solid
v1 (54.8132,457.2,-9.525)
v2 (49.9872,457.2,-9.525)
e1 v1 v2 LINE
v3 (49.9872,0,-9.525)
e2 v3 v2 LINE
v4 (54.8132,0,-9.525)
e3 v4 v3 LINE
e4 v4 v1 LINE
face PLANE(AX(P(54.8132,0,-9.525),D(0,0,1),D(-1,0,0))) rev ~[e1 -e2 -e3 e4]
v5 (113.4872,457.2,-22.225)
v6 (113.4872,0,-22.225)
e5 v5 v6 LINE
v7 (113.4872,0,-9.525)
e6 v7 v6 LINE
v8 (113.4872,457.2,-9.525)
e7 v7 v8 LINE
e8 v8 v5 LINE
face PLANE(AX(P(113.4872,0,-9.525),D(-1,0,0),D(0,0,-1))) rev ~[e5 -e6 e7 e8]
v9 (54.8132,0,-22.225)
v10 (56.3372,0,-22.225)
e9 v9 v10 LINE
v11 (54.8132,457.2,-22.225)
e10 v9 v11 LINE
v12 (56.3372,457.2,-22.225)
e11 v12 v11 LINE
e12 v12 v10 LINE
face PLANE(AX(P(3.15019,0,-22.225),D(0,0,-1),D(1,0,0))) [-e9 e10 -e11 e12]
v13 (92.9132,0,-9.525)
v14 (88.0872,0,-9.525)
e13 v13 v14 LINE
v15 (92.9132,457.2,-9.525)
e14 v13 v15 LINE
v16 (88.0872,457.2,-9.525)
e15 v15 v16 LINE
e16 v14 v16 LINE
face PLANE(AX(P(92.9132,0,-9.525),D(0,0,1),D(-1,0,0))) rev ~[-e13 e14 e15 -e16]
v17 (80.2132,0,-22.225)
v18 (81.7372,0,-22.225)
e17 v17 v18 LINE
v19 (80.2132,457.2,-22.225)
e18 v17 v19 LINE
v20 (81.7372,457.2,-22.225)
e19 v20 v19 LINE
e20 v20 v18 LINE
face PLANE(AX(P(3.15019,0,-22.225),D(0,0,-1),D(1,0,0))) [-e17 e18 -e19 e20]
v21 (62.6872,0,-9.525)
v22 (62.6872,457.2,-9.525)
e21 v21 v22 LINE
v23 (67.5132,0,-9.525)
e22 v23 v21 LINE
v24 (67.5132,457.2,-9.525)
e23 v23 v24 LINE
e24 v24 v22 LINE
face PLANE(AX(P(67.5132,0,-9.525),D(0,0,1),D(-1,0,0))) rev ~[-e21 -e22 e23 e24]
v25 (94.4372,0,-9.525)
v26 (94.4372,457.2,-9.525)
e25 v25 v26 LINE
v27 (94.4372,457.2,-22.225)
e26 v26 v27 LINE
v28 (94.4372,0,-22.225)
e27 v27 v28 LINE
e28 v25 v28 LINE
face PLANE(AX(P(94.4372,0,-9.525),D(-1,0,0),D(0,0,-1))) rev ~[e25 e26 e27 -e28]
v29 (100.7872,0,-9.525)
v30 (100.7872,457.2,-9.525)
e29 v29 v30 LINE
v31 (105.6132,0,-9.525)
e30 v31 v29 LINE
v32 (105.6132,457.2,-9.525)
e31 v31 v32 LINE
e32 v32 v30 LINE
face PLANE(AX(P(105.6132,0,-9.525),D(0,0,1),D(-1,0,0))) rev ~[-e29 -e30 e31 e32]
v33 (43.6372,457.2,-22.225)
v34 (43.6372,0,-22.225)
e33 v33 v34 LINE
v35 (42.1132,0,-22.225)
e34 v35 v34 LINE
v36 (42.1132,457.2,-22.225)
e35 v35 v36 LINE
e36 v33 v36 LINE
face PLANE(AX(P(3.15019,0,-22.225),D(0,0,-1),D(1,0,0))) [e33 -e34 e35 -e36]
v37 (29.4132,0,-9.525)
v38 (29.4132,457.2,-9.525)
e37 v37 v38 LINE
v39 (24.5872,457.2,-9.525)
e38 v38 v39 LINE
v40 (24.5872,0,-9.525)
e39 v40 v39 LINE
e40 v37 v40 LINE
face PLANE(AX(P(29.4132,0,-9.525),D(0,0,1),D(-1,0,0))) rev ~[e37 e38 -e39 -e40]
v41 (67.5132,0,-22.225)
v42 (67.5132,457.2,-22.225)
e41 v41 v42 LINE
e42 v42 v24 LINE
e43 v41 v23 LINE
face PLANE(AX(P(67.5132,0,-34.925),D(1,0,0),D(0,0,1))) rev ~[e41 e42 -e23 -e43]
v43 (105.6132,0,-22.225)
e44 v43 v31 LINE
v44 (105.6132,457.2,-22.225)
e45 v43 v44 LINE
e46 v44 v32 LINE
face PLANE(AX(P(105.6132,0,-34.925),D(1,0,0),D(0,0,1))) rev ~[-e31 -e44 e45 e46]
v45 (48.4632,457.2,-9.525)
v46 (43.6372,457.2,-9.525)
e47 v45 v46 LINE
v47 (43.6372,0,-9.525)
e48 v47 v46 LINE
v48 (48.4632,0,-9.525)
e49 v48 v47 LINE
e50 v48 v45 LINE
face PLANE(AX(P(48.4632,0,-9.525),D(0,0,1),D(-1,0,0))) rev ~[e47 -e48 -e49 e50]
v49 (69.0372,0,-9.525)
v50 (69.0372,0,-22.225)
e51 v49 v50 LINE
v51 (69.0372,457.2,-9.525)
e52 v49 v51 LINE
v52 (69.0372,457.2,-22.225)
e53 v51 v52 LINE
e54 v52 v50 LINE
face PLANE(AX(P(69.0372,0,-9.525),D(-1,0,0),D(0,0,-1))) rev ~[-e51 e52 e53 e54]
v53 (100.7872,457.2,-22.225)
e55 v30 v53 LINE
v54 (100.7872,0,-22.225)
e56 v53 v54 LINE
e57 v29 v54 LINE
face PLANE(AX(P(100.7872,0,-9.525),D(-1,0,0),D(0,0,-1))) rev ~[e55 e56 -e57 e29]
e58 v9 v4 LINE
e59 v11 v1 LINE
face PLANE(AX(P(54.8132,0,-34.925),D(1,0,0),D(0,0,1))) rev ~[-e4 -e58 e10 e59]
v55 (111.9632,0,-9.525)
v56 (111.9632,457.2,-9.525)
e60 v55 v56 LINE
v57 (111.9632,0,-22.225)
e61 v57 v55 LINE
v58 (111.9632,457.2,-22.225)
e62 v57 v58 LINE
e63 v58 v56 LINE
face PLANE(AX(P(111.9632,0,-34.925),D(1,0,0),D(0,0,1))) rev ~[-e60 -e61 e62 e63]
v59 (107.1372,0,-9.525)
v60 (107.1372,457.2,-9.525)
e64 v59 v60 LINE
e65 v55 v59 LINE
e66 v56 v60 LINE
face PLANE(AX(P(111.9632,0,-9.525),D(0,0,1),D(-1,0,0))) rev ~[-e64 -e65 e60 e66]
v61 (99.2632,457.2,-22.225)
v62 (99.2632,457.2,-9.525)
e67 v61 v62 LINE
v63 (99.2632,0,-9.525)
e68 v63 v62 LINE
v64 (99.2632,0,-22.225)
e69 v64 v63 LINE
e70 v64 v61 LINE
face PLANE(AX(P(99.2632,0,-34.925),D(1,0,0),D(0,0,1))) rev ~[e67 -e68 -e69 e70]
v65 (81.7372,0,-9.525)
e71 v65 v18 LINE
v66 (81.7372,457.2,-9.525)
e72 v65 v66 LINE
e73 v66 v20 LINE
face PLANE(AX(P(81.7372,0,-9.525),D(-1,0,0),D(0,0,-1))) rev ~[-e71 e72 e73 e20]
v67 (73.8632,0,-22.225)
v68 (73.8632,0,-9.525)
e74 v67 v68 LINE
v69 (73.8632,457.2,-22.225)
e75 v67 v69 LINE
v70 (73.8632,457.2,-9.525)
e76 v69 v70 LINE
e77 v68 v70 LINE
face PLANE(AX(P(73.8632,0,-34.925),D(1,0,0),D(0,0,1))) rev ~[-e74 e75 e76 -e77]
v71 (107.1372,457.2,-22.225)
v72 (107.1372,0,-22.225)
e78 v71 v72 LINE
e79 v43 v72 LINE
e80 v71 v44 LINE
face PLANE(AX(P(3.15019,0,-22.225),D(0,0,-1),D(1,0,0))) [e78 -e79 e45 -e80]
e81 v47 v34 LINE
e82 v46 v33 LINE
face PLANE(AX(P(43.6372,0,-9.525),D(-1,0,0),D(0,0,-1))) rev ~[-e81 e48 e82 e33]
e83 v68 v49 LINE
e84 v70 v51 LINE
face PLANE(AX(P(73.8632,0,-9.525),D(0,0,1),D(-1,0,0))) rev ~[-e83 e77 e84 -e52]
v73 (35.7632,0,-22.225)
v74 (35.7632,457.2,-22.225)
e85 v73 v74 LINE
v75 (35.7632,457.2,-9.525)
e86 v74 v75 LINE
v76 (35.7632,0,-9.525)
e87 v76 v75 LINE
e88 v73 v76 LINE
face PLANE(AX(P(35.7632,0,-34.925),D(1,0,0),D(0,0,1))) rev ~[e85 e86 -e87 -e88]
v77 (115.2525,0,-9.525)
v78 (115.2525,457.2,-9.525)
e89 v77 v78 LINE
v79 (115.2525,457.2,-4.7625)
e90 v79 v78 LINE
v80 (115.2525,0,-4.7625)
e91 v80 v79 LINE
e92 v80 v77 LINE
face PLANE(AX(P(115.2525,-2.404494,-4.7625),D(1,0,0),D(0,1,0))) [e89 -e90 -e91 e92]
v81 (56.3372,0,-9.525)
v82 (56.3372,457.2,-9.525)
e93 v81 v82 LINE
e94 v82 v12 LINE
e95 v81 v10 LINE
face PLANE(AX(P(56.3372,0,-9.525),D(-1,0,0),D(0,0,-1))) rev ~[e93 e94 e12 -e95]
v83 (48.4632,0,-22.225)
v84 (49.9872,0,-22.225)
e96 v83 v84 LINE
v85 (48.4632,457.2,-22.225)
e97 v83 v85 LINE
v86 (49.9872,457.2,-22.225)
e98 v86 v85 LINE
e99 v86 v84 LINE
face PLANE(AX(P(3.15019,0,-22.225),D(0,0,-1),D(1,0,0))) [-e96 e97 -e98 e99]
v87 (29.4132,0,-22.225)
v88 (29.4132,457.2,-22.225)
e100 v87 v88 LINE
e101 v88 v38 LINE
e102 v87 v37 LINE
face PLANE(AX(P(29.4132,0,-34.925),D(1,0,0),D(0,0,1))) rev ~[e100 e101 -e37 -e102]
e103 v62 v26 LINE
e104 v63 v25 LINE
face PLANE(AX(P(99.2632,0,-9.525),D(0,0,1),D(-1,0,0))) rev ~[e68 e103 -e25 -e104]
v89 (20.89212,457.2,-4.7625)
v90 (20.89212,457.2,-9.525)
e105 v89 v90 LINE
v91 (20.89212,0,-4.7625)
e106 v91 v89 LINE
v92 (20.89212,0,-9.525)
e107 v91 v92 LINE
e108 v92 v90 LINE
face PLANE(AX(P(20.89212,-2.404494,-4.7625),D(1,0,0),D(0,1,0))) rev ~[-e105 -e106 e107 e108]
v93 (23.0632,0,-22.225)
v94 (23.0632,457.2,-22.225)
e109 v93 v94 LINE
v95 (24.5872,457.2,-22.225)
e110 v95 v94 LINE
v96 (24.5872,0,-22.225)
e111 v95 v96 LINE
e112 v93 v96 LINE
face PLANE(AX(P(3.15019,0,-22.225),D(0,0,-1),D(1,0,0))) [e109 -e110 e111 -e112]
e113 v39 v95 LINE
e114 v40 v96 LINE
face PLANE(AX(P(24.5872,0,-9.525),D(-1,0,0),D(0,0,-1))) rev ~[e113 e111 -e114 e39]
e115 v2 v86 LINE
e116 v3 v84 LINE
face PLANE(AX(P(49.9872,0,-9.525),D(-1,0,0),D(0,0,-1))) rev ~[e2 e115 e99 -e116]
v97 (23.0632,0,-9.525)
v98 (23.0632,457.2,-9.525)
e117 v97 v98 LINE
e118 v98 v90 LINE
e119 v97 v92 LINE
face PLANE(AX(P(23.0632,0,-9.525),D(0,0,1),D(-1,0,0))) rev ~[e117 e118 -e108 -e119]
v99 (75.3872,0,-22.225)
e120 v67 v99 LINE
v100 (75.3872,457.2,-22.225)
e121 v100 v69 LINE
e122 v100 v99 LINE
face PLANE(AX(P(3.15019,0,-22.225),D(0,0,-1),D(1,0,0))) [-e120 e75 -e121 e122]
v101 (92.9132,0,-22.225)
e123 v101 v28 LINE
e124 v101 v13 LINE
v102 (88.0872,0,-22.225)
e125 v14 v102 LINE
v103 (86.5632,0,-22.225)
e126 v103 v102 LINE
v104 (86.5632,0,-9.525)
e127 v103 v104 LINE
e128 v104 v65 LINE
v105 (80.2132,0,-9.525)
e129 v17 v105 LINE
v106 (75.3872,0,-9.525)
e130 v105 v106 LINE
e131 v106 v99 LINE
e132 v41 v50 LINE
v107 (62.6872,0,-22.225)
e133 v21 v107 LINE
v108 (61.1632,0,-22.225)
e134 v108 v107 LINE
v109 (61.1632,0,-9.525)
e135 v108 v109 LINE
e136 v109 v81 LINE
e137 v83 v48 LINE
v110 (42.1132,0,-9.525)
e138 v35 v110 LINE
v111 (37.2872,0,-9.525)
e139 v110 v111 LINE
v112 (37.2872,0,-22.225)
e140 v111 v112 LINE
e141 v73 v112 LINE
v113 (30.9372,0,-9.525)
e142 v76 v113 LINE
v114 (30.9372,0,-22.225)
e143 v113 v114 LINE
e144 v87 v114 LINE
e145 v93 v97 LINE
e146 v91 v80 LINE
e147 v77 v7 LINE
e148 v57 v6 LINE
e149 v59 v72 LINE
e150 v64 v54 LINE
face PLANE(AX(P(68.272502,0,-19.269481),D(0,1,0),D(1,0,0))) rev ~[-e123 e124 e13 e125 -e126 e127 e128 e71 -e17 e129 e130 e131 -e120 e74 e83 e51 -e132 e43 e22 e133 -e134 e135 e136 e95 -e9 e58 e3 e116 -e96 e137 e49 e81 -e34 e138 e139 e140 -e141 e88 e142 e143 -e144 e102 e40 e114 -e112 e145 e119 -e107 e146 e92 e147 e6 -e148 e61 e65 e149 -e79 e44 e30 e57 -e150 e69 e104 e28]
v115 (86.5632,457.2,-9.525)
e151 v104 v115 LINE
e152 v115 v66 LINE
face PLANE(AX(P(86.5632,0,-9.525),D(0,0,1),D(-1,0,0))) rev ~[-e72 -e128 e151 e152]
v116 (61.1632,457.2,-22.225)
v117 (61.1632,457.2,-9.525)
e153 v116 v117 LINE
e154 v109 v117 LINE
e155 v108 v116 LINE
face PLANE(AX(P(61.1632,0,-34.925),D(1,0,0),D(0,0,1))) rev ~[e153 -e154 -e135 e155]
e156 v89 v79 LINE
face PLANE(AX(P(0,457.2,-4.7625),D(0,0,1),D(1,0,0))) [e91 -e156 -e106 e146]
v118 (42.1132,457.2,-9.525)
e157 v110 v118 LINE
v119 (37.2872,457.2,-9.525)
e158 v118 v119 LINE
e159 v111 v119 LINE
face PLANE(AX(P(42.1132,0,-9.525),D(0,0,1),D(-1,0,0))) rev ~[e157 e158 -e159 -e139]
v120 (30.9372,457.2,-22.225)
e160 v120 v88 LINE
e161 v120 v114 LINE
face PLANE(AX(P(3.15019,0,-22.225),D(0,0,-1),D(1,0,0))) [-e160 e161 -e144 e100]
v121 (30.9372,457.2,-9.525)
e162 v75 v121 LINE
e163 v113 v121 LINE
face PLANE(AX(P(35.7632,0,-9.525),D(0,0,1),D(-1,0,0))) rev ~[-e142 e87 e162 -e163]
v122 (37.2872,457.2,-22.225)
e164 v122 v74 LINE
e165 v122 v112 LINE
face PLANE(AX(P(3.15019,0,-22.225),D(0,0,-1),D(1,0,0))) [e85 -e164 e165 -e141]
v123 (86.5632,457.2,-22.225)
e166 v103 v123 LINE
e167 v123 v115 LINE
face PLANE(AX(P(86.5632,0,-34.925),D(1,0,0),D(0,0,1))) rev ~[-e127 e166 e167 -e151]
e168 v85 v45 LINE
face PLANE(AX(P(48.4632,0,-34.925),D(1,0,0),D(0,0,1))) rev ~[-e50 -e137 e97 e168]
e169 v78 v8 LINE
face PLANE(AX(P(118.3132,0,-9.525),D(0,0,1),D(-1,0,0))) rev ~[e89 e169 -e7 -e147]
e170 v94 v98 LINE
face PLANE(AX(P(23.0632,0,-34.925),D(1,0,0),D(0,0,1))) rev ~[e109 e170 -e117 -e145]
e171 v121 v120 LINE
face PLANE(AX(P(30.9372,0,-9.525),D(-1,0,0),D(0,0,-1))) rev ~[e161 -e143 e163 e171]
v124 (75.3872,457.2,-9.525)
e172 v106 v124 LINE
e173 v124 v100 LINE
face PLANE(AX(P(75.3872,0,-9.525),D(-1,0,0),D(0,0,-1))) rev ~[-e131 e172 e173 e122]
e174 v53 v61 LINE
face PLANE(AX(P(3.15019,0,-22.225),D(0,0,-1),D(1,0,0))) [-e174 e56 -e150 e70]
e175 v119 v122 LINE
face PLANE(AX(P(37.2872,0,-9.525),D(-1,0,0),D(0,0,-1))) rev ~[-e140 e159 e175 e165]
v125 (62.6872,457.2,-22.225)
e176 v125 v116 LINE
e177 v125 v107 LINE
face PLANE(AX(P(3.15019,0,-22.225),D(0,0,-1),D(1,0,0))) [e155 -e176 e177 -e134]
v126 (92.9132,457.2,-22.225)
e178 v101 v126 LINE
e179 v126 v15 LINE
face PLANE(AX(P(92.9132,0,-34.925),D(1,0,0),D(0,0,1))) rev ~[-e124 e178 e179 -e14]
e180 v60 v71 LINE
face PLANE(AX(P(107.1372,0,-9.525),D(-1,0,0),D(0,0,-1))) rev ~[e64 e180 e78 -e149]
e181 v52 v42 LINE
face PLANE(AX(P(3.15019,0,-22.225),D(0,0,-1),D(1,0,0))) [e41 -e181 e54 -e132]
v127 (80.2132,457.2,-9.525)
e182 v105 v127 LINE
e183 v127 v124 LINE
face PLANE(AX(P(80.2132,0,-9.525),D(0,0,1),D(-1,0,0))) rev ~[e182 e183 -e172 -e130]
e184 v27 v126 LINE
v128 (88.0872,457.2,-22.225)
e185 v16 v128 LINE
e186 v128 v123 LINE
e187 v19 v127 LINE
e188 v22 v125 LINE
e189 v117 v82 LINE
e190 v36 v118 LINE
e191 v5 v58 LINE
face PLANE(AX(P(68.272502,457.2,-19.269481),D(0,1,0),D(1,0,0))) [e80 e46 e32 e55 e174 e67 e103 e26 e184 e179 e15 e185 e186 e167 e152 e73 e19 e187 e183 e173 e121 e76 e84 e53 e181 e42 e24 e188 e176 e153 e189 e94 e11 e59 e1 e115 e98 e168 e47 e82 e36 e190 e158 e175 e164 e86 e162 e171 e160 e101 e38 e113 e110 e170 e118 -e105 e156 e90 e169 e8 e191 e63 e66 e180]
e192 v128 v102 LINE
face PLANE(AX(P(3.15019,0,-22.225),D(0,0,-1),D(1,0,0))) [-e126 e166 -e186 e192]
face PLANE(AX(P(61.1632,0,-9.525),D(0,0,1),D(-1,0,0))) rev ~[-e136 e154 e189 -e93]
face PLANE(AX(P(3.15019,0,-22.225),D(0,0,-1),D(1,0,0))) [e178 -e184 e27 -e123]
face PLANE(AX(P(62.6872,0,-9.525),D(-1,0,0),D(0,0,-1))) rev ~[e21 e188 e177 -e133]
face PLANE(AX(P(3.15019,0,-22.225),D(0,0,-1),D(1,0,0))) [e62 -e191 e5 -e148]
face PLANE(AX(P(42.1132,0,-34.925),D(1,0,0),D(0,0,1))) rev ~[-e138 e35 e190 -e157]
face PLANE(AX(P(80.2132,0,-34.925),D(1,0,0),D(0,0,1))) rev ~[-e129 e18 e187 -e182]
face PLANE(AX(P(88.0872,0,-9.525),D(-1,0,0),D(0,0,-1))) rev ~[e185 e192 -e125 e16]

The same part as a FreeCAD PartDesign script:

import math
import FreeCAD as App
import Part
import Sketcher

V = App.Vector
Q = App.Units.Quantity


def add_polygon(sketch, points):
    """Adds a closed chain of lines whose ends are joined by coincident constraints."""
    first, n = sketch.GeometryCount, len(points)
    for a, b in zip(points, points[1:] + points[:1]):
        sketch.addGeometry(Part.LineSegment(App.Vector(*a, 0), App.Vector(*b, 0)), False)
    for i in range(n):
        sketch.addConstraint(Sketcher.Constraint("Coincident", first + i, 2, first + (i + 1) % n, 1))

doc = App.newDocument("Part")
body = doc.addObject("PartDesign::Body", "Body")

sketch1 = body.newObject("Sketcher::SketchObject", "Sketch")
sketch1.AttachmentSupport = (doc.getObject("XZ_Plane"), [""])
sketch1.MapMode = "FlatFace"
sketch1.addGeometry(Part.LineSegment(V(0, 0, 0), V(136.5, 0, 0)), False)
sketch1.addGeometry(Part.LineSegment(V(136.5, 0, 0), V(136.5, -9.5, 0)), False)
sketch1.addGeometry(Part.LineSegment(V(136.5, -9.5, 0), V(132.5, -9.5, 0)), False)
sketch1.addGeometry(Part.LineSegment(V(132.5, -9.5, 0), V(132.5, -34.9, 0)), False)
sketch1.addGeometry(Part.ArcOfCircle(Part.Circle(V(131.8, -34.9, 0), V(0, 0, 1), 0.8), math.radians(180), math.radians(360)), False)
sketch1.addGeometry(Part.LineSegment(V(131, -34.9, 0), V(131, -9.5, 0)), False)
sketch1.addGeometry(Part.LineSegment(V(131, -9.5, 0), V(126.2, -9.5, 0)), False)
sketch1.addGeometry(Part.LineSegment(V(126.2, -9.5, 0), V(126.2, -34.9, 0)), False)
sketch1.addGeometry(Part.ArcOfCircle(Part.Circle(V(125.4, -34.9, 0), V(0, 0, 1), 0.8), math.radians(180), math.radians(360)), False)
sketch1.addGeometry(Part.LineSegment(V(124.7, -34.9, 0), V(124.7, -9.5, 0)), False)
sketch1.addGeometry(Part.LineSegment(V(124.7, -9.5, 0), V(119.8, -9.5, 0)), False)
sketch1.addGeometry(Part.LineSegment(V(119.8, -9.5, 0), V(119.8, -34.9, 0)), False)
sketch1.addGeometry(Part.ArcOfCircle(Part.Circle(V(119.1, -34.9, 0), V(0, 0, 1), 0.8), math.radians(180), math.radians(360)), False)
sketch1.addGeometry(Part.LineSegment(V(118.3, -34.9, 0), V(118.3, -9.5, 0)), False)
sketch1.addGeometry(Part.LineSegment(V(118.3, -9.5, 0), V(113.5, -9.5, 0)), False)
sketch1.addGeometry(Part.LineSegment(V(113.5, -9.5, 0), V(113.5, -34.9, 0)), False)
sketch1.addGeometry(Part.ArcOfCircle(Part.Circle(V(112.7, -34.9, 0), V(0, 0, 1), 0.8), math.radians(180), math.radians(360)), False)
sketch1.addGeometry(Part.LineSegment(V(112, -34.9, 0), V(112, -9.5, 0)), False)
sketch1.addGeometry(Part.LineSegment(V(112, -9.5, 0), V(107.1, -9.5, 0)), False)
sketch1.addGeometry(Part.LineSegment(V(107.1, -9.5, 0), V(107.1, -34.9, 0)), False)
sketch1.addGeometry(Part.ArcOfCircle(Part.Circle(V(106.4, -34.9, 0), V(0, 0, 1), 0.8), math.radians(180), math.radians(360)), False)
sketch1.addGeometry(Part.LineSegment(V(105.6, -34.9, 0), V(105.6, -9.5, 0)), False)
sketch1.addGeometry(Part.LineSegment(V(105.6, -9.5, 0), V(100.8, -9.5, 0)), False)
sketch1.addGeometry(Part.LineSegment(V(100.8, -9.5, 0), V(100.8, -34.9, 0)), False)
sketch1.addGeometry(Part.ArcOfCircle(Part.Circle(V(100, -34.9, 0), V(0, 0, 1), 0.8), math.radians(180), math.radians(360)), False)
sketch1.addGeometry(Part.LineSegment(V(99.3, -34.9, 0), V(99.3, -9.5, 0)), False)
sketch1.addGeometry(Part.LineSegment(V(99.3, -9.5, 0), V(94.4, -9.5, 0)), False)
sketch1.addGeometry(Part.LineSegment(V(94.4, -9.5, 0), V(94.4, -34.9, 0)), False)
sketch1.addGeometry(Part.ArcOfCircle(Part.Circle(V(93.7, -34.9, 0), V(0, 0, 1), 0.8), math.radians(180), math.radians(360)), False)
sketch1.addGeometry(Part.LineSegment(V(92.9, -34.9, 0), V(92.9, -9.5, 0)), False)
sketch1.addGeometry(Part.LineSegment(V(92.9, -9.5, 0), V(88.1, -9.5, 0)), False)
sketch1.addGeometry(Part.LineSegment(V(88.1, -9.5, 0), V(88.1, -34.9, 0)), False)
sketch1.addGeometry(Part.ArcOfCircle(Part.Circle(V(87.3, -34.9, 0), V(0, 0, 1), 0.8), math.radians(180), math.radians(360)), False)
sketch1.addGeometry(Part.LineSegment(V(86.6, -34.9, 0), V(86.6, -9.5, 0)), False)
sketch1.addGeometry(Part.LineSegment(V(86.6, -9.5, 0), V(81.7, -9.5, 0)), False)
sketch1.addGeometry(Part.LineSegment(V(81.7, -9.5, 0), V(81.7, -34.9, 0)), False)
sketch1.addGeometry(Part.ArcOfCircle(Part.Circle(V(81, -34.9, 0), V(0, 0, 1), 0.8), math.radians(180), math.radians(360)), False)
sketch1.addGeometry(Part.LineSegment(V(80.2, -34.9, 0), V(80.2, -9.5, 0)), False)
sketch1.addGeometry(Part.LineSegment(V(80.2, -9.5, 0), V(75.4, -9.5, 0)), False)
sketch1.addGeometry(Part.LineSegment(V(75.4, -9.5, 0), V(75.4, -34.9, 0)), False)
sketch1.addGeometry(Part.ArcOfCircle(Part.Circle(V(74.6, -34.9, 0), V(0, 0, 1), 0.8), math.radians(180), math.radians(360)), False)
sketch1.addGeometry(Part.LineSegment(V(73.9, -34.9, 0), V(73.9, -9.5, 0)), False)
sketch1.addGeometry(Part.LineSegment(V(73.9, -9.5, 0), V(69, -9.5, 0)), False)
sketch1.addGeometry(Part.LineSegment(V(69, -9.5, 0), V(69, -34.9, 0)), False)
sketch1.addGeometry(Part.ArcOfCircle(Part.Circle(V(68.3, -34.9, 0), V(0, 0, 1), 0.8), math.radians(180), math.radians(360)), False)
sketch1.addGeometry(Part.LineSegment(V(67.5, -34.9, 0), V(67.5, -9.5, 0)), False)
sketch1.addGeometry(Part.LineSegment(V(67.5, -9.5, 0), V(62.7, -9.5, 0)), False)
sketch1.addGeometry(Part.LineSegment(V(62.7, -9.5, 0), V(62.7, -34.9, 0)), False)
sketch1.addGeometry(Part.ArcOfCircle(Part.Circle(V(61.9, -34.9, 0), V(0, 0, 1), 0.8), math.radians(180), math.radians(360)), False)
sketch1.addGeometry(Part.LineSegment(V(61.2, -34.9, 0), V(61.2, -9.5, 0)), False)
sketch1.addGeometry(Part.LineSegment(V(61.2, -9.5, 0), V(56.3, -9.5, 0)), False)
sketch1.addGeometry(Part.LineSegment(V(56.3, -9.5, 0), V(56.3, -34.9, 0)), False)
sketch1.addGeometry(Part.ArcOfCircle(Part.Circle(V(55.6, -34.9, 0), V(0, 0, 1), 0.8), math.radians(180), math.radians(360)), False)
sketch1.addGeometry(Part.LineSegment(V(54.8, -34.9, 0), V(54.8, -9.5, 0)), False)
sketch1.addGeometry(Part.LineSegment(V(54.8, -9.5, 0), V(50, -9.5, 0)), False)
sketch1.addGeometry(Part.LineSegment(V(50, -9.5, 0), V(50, -34.9, 0)), False)
sketch1.addGeometry(Part.ArcOfCircle(Part.Circle(V(49.2, -34.9, 0), V(0, 0, 1), 0.8), math.radians(180), math.radians(360)), False)
sketch1.addGeometry(Part.LineSegment(V(48.5, -34.9, 0), V(48.5, -9.5, 0)), False)
sketch1.addGeometry(Part.LineSegment(V(48.5, -9.5, 0), V(43.6, -9.5, 0)), False)
sketch1.addGeometry(Part.LineSegment(V(43.6, -9.5, 0), V(43.6, -34.9, 0)), False)
sketch1.addGeometry(Part.ArcOfCircle(Part.Circle(V(42.9, -34.9, 0), V(0, 0, 1), 0.8), math.radians(180), math.radians(360)), False)
sketch1.addGeometry(Part.LineSegment(V(42.1, -34.9, 0), V(42.1, -9.5, 0)), False)
sketch1.addGeometry(Part.LineSegment(V(42.1, -9.5, 0), V(37.3, -9.5, 0)), False)
sketch1.addGeometry(Part.LineSegment(V(37.3, -9.5, 0), V(37.3, -34.9, 0)), False)
sketch1.addGeometry(Part.ArcOfCircle(Part.Circle(V(36.5, -34.9, 0), V(0, 0, 1), 0.8), math.radians(180), math.radians(360)), False)
sketch1.addGeometry(Part.LineSegment(V(35.8, -34.9, 0), V(35.8, -9.5, 0)), False)
sketch1.addGeometry(Part.LineSegment(V(35.8, -9.5, 0), V(30.9, -9.5, 0)), False)
sketch1.addGeometry(Part.LineSegment(V(30.9, -9.5, 0), V(30.9, -34.9, 0)), False)
sketch1.addGeometry(Part.ArcOfCircle(Part.Circle(V(30.2, -34.9, 0), V(0, 0, 1), 0.8), math.radians(180), math.radians(360)), False)
sketch1.addGeometry(Part.LineSegment(V(29.4, -34.9, 0), V(29.4, -9.5, 0)), False)
sketch1.addGeometry(Part.LineSegment(V(29.4, -9.5, 0), V(24.6, -9.5, 0)), False)
sketch1.addGeometry(Part.LineSegment(V(24.6, -9.5, 0), V(24.6, -34.9, 0)), False)
sketch1.addGeometry(Part.ArcOfCircle(Part.Circle(V(23.8, -34.9, 0), V(0, 0, 1), 0.8), math.radians(180), math.radians(360)), False)
sketch1.addGeometry(Part.LineSegment(V(23.1, -34.9, 0), V(23.1, -9.5, 0)), False)
sketch1.addGeometry(Part.LineSegment(V(23.1, -9.5, 0), V(18.2, -9.5, 0)), False)
sketch1.addGeometry(Part.LineSegment(V(18.2, -9.5, 0), V(18.2, -34.9, 0)), False)
sketch1.addGeometry(Part.ArcOfCircle(Part.Circle(V(17.5, -34.9, 0), V(0, 0, 1), 0.8), math.radians(180), math.radians(360)), False)
sketch1.addGeometry(Part.LineSegment(V(16.7, -34.9, 0), V(16.7, -9.5, 0)), False)
sketch1.addGeometry(Part.LineSegment(V(16.7, -9.5, 0), V(11.9, -9.5, 0)), False)
sketch1.addGeometry(Part.LineSegment(V(11.9, -9.5, 0), V(11.9, -34.9, 0)), False)
sketch1.addGeometry(Part.ArcOfCircle(Part.Circle(V(11.1, -34.9, 0), V(0, 0, 1), 0.8), math.radians(180), math.radians(360)), False)
sketch1.addGeometry(Part.LineSegment(V(10.4, -34.9, 0), V(10.4, -9.5, 0)), False)
sketch1.addGeometry(Part.LineSegment(V(10.4, -9.5, 0), V(5.5, -9.5, 0)), False)
sketch1.addGeometry(Part.LineSegment(V(5.5, -9.5, 0), V(5.5, -34.9, 0)), False)
sketch1.addGeometry(Part.ArcOfCircle(Part.Circle(V(4.8, -34.9, 0), V(0, 0, 1), 0.8), math.radians(180), math.radians(360)), False)
sketch1.addGeometry(Part.LineSegment(V(4, -34.9, 0), V(4, -9.5, 0)), False)
sketch1.addGeometry(Part.LineSegment(V(4, -9.5, 0), V(0, -9.5, 0)), False)
sketch1.addGeometry(Part.LineSegment(V(0, -9.5, 0), V(0, 0, 0)), False)
sketch1.addConstraint(Sketcher.Constraint("Coincident", 0, 2, 1, 1))
sketch1.addConstraint(Sketcher.Constraint("Coincident", 1, 2, 2, 1))
sketch1.addConstraint(Sketcher.Constraint("Coincident", 2, 2, 3, 1))
sketch1.addConstraint(Sketcher.Constraint("Tangent", 3, 2, 4, 2))
sketch1.addConstraint(Sketcher.Constraint("Tangent", 4, 1, 5, 1))
sketch1.addConstraint(Sketcher.Constraint("Coincident", 5, 2, 6, 1))
sketch1.addConstraint(Sketcher.Constraint("Coincident", 6, 2, 7, 1))
sketch1.addConstraint(Sketcher.Constraint("Tangent", 7, 2, 8, 2))
sketch1.addConstraint(Sketcher.Constraint("Tangent", 8, 1, 9, 1))
sketch1.addConstraint(Sketcher.Constraint("Coincident", 9, 2, 10, 1))
sketch1.addConstraint(Sketcher.Constraint("Coincident", 10, 2, 11, 1))
sketch1.addConstraint(Sketcher.Constraint("Tangent", 11, 2, 12, 2))
sketch1.addConstraint(Sketcher.Constraint("Tangent", 12, 1, 13, 1))
sketch1.addConstraint(Sketcher.Constraint("Coincident", 13, 2, 14, 1))
sketch1.addConstraint(Sketcher.Constraint("Coincident", 14, 2, 15, 1))
sketch1.addConstraint(Sketcher.Constraint("Tangent", 15, 2, 16, 2))
sketch1.addConstraint(Sketcher.Constraint("Tangent", 16, 1, 17, 1))
sketch1.addConstraint(Sketcher.Constraint("Coincident", 17, 2, 18, 1))
sketch1.addConstraint(Sketcher.Constraint("Coincident", 18, 2, 19, 1))
sketch1.addConstraint(Sketcher.Constraint("Tangent", 19, 2, 20, 2))
sketch1.addConstraint(Sketcher.Constraint("Tangent", 20, 1, 21, 1))
sketch1.addConstraint(Sketcher.Constraint("Coincident", 21, 2, 22, 1))
sketch1.addConstraint(Sketcher.Constraint("Coincident", 22, 2, 23, 1))
sketch1.addConstraint(Sketcher.Constraint("Tangent", 23, 2, 24, 2))
sketch1.addConstraint(Sketcher.Constraint("Tangent", 24, 1, 25, 1))
sketch1.addConstraint(Sketcher.Constraint("Coincident", 25, 2, 26, 1))
sketch1.addConstraint(Sketcher.Constraint("Coincident", 26, 2, 27, 1))
sketch1.addConstraint(Sketcher.Constraint("Tangent", 27, 2, 28, 2))
sketch1.addConstraint(Sketcher.Constraint("Tangent", 28, 1, 29, 1))
sketch1.addConstraint(Sketcher.Constraint("Coincident", 29, 2, 30, 1))
sketch1.addConstraint(Sketcher.Constraint("Coincident", 30, 2, 31, 1))
sketch1.addConstraint(Sketcher.Constraint("Tangent", 31, 2, 32, 2))
sketch1.addConstraint(Sketcher.Constraint("Tangent", 32, 1, 33, 1))
sketch1.addConstraint(Sketcher.Constraint("Coincident", 33, 2, 34, 1))
sketch1.addConstraint(Sketcher.Constraint("Coincident", 34, 2, 35, 1))
sketch1.addConstraint(Sketcher.Constraint("Tangent", 35, 2, 36, 2))
sketch1.addConstraint(Sketcher.Constraint("Tangent", 36, 1, 37, 1))
sketch1.addConstraint(Sketcher.Constraint("Coincident", 37, 2, 38, 1))
sketch1.addConstraint(Sketcher.Constraint("Coincident", 38, 2, 39, 1))
sketch1.addConstraint(Sketcher.Constraint("Tangent", 39, 2, 40, 2))
sketch1.addConstraint(Sketcher.Constraint("Tangent", 40, 1, 41, 1))
sketch1.addConstraint(Sketcher.Constraint("Coincident", 41, 2, 42, 1))
sketch1.addConstraint(Sketcher.Constraint("Coincident", 42, 2, 43, 1))
sketch1.addConstraint(Sketcher.Constraint("Tangent", 43, 2, 44, 2))
sketch1.addConstraint(Sketcher.Constraint("Tangent", 44, 1, 45, 1))
sketch1.addConstraint(Sketcher.Constraint("Coincident", 45, 2, 46, 1))
sketch1.addConstraint(Sketcher.Constraint("Coincident", 46, 2, 47, 1))
sketch1.addConstraint(Sketcher.Constraint("Tangent", 47, 2, 48, 2))
sketch1.addConstraint(Sketcher.Constraint("Tangent", 48, 1, 49, 1))
sketch1.addConstraint(Sketcher.Constraint("Coincident", 49, 2, 50, 1))
sketch1.addConstraint(Sketcher.Constraint("Coincident", 50, 2, 51, 1))
sketch1.addConstraint(Sketcher.Constraint("Tangent", 51, 2, 52, 2))
sketch1.addConstraint(Sketcher.Constraint("Tangent", 52, 1, 53, 1))
sketch1.addConstraint(Sketcher.Constraint("Coincident", 53, 2, 54, 1))
sketch1.addConstraint(Sketcher.Constraint("Coincident", 54, 2, 55, 1))
sketch1.addConstraint(Sketcher.Constraint("Tangent", 55, 2, 56, 2))
sketch1.addConstraint(Sketcher.Constraint("Tangent", 56, 1, 57, 1))
sketch1.addConstraint(Sketcher.Constraint("Coincident", 57, 2, 58, 1))
sketch1.addConstraint(Sketcher.Constraint("Coincident", 58, 2, 59, 1))
sketch1.addConstraint(Sketcher.Constraint("Tangent", 59, 2, 60, 2))
sketch1.addConstraint(Sketcher.Constraint("Tangent", 60, 1, 61, 1))
sketch1.addConstraint(Sketcher.Constraint("Coincident", 61, 2, 62, 1))
sketch1.addConstraint(Sketcher.Constraint("Coincident", 62, 2, 63, 1))
sketch1.addConstraint(Sketcher.Constraint("Tangent", 63, 2, 64, 2))
sketch1.addConstraint(Sketcher.Constraint("Tangent", 64, 1, 65, 1))
sketch1.addConstraint(Sketcher.Constraint("Coincident", 65, 2, 66, 1))
sketch1.addConstraint(Sketcher.Constraint("Coincident", 66, 2, 67, 1))
sketch1.addConstraint(Sketcher.Constraint("Tangent", 67, 2, 68, 2))
sketch1.addConstraint(Sketcher.Constraint("Tangent", 68, 1, 69, 1))
sketch1.addConstraint(Sketcher.Constraint("Coincident", 69, 2, 70, 1))
sketch1.addConstraint(Sketcher.Constraint("Coincident", 70, 2, 71, 1))
sketch1.addConstraint(Sketcher.Constraint("Tangent", 71, 2, 72, 2))
sketch1.addConstraint(Sketcher.Constraint("Tangent", 72, 1, 73, 1))
sketch1.addConstraint(Sketcher.Constraint("Coincident", 73, 2, 74, 1))
sketch1.addConstraint(Sketcher.Constraint("Coincident", 74, 2, 75, 1))
sketch1.addConstraint(Sketcher.Constraint("Tangent", 75, 2, 76, 2))
sketch1.addConstraint(Sketcher.Constraint("Tangent", 76, 1, 77, 1))
sketch1.addConstraint(Sketcher.Constraint("Coincident", 77, 2, 78, 1))
sketch1.addConstraint(Sketcher.Constraint("Coincident", 78, 2, 79, 1))
sketch1.addConstraint(Sketcher.Constraint("Tangent", 79, 2, 80, 2))
sketch1.addConstraint(Sketcher.Constraint("Tangent", 80, 1, 81, 1))
sketch1.addConstraint(Sketcher.Constraint("Coincident", 81, 2, 82, 1))
sketch1.addConstraint(Sketcher.Constraint("Coincident", 82, 2, 83, 1))
sketch1.addConstraint(Sketcher.Constraint("Tangent", 83, 2, 84, 2))
sketch1.addConstraint(Sketcher.Constraint("Tangent", 84, 1, 85, 1))
sketch1.addConstraint(Sketcher.Constraint("Coincident", 85, 2, 86, 1))
sketch1.addConstraint(Sketcher.Constraint("Coincident", 86, 2, 87, 1))
sketch1.addConstraint(Sketcher.Constraint("Coincident", 87, 2, 0, 1))
sketch1.addConstraint(Sketcher.Constraint("Horizontal", 0))
sketch1.addConstraint(Sketcher.Constraint("Vertical", 1))
sketch1.addConstraint(Sketcher.Constraint("Horizontal", 2))
sketch1.addConstraint(Sketcher.Constraint("Vertical", 3))
sketch1.addConstraint(Sketcher.Constraint("Vertical", 5))
sketch1.addConstraint(Sketcher.Constraint("Horizontal", 6))
sketch1.addConstraint(Sketcher.Constraint("Vertical", 7))
sketch1.addConstraint(Sketcher.Constraint("Vertical", 9))
sketch1.addConstraint(Sketcher.Constraint("Horizontal", 10))
sketch1.addConstraint(Sketcher.Constraint("Vertical", 11))
sketch1.addConstraint(Sketcher.Constraint("Vertical", 13))
sketch1.addConstraint(Sketcher.Constraint("Horizontal", 14))
sketch1.addConstraint(Sketcher.Constraint("Vertical", 15))
sketch1.addConstraint(Sketcher.Constraint("Vertical", 17))
sketch1.addConstraint(Sketcher.Constraint("Horizontal", 18))
sketch1.addConstraint(Sketcher.Constraint("Vertical", 19))
sketch1.addConstraint(Sketcher.Constraint("Vertical", 21))
sketch1.addConstraint(Sketcher.Constraint("Horizontal", 22))
sketch1.addConstraint(Sketcher.Constraint("Vertical", 23))
sketch1.addConstraint(Sketcher.Constraint("Vertical", 25))
sketch1.addConstraint(Sketcher.Constraint("Horizontal", 26))
sketch1.addConstraint(Sketcher.Constraint("Vertical", 27))
sketch1.addConstraint(Sketcher.Constraint("Vertical", 29))
sketch1.addConstraint(Sketcher.Constraint("Horizontal", 30))
sketch1.addConstraint(Sketcher.Constraint("Vertical", 31))
sketch1.addConstraint(Sketcher.Constraint("Vertical", 33))
sketch1.addConstraint(Sketcher.Constraint("Horizontal", 34))
sketch1.addConstraint(Sketcher.Constraint("Vertical", 35))
sketch1.addConstraint(Sketcher.Constraint("Vertical", 37))
sketch1.addConstraint(Sketcher.Constraint("Horizontal", 38))
sketch1.addConstraint(Sketcher.Constraint("Vertical", 39))
sketch1.addConstraint(Sketcher.Constraint("Vertical", 41))
sketch1.addConstraint(Sketcher.Constraint("Horizontal", 42))
sketch1.addConstraint(Sketcher.Constraint("Vertical", 43))
sketch1.addConstraint(Sketcher.Constraint("Vertical", 45))
sketch1.addConstraint(Sketcher.Constraint("Horizontal", 46))
sketch1.addConstraint(Sketcher.Constraint("Vertical", 47))
sketch1.addConstraint(Sketcher.Constraint("Vertical", 49))
sketch1.addConstraint(Sketcher.Constraint("Horizontal", 50))
sketch1.addConstraint(Sketcher.Constraint("Vertical", 51))
sketch1.addConstraint(Sketcher.Constraint("Vertical", 53))
sketch1.addConstraint(Sketcher.Constraint("Horizontal", 54))
sketch1.addConstraint(Sketcher.Constraint("Vertical", 55))
sketch1.addConstraint(Sketcher.Constraint("Vertical", 57))
sketch1.addConstraint(Sketcher.Constraint("Horizontal", 58))
sketch1.addConstraint(Sketcher.Constraint("Vertical", 59))
sketch1.addConstraint(Sketcher.Constraint("Vertical", 61))
sketch1.addConstraint(Sketcher.Constraint("Horizontal", 62))
sketch1.addConstraint(Sketcher.Constraint("Vertical", 63))
sketch1.addConstraint(Sketcher.Constraint("Vertical", 65))
sketch1.addConstraint(Sketcher.Constraint("Horizontal", 66))
sketch1.addConstraint(Sketcher.Constraint("Vertical", 67))
sketch1.addConstraint(Sketcher.Constraint("Vertical", 69))
sketch1.addConstraint(Sketcher.Constraint("Horizontal", 70))
sketch1.addConstraint(Sketcher.Constraint("Vertical", 71))
sketch1.addConstraint(Sketcher.Constraint("Vertical", 73))
sketch1.addConstraint(Sketcher.Constraint("Horizontal", 74))
sketch1.addConstraint(Sketcher.Constraint("Vertical", 75))
sketch1.addConstraint(Sketcher.Constraint("Vertical", 77))
sketch1.addConstraint(Sketcher.Constraint("Horizontal", 78))
sketch1.addConstraint(Sketcher.Constraint("Vertical", 79))
sketch1.addConstraint(Sketcher.Constraint("Vertical", 81))
sketch1.addConstraint(Sketcher.Constraint("Horizontal", 82))
sketch1.addConstraint(Sketcher.Constraint("Vertical", 83))
sketch1.addConstraint(Sketcher.Constraint("Vertical", 85))
sketch1.addConstraint(Sketcher.Constraint("Horizontal", 86))
sketch1.addConstraint(Sketcher.Constraint("Vertical", 87))
sketch1.addConstraint(Sketcher.Constraint("Coincident", 87, 2, -1, 1))
sketch1.addConstraint(Sketcher.Constraint("Equal", 4, 8))
sketch1.addConstraint(Sketcher.Constraint("Equal", 8, 12))
sketch1.addConstraint(Sketcher.Constraint("Equal", 12, 16))
sketch1.addConstraint(Sketcher.Constraint("Equal", 16, 20))
sketch1.addConstraint(Sketcher.Constraint("Equal", 20, 24))
sketch1.addConstraint(Sketcher.Constraint("Equal", 24, 28))
sketch1.addConstraint(Sketcher.Constraint("Equal", 28, 32))
sketch1.addConstraint(Sketcher.Constraint("Equal", 32, 36))
sketch1.addConstraint(Sketcher.Constraint("Equal", 36, 40))
sketch1.addConstraint(Sketcher.Constraint("Equal", 40, 44))
sketch1.addConstraint(Sketcher.Constraint("Equal", 44, 48))
sketch1.addConstraint(Sketcher.Constraint("Equal", 48, 52))
sketch1.addConstraint(Sketcher.Constraint("Equal", 52, 56))
sketch1.addConstraint(Sketcher.Constraint("Equal", 56, 60))
sketch1.addConstraint(Sketcher.Constraint("Equal", 60, 64))
sketch1.addConstraint(Sketcher.Constraint("Equal", 64, 68))
sketch1.addConstraint(Sketcher.Constraint("Equal", 68, 72))
sketch1.addConstraint(Sketcher.Constraint("Equal", 72, 76))
sketch1.addConstraint(Sketcher.Constraint("Equal", 76, 80))
sketch1.addConstraint(Sketcher.Constraint("Equal", 80, 84))
sketch1.addConstraint(Sketcher.Constraint("Horizontal", 4, 3, 8, 3))
sketch1.addConstraint(Sketcher.Constraint("Horizontal", 8, 3, 12, 3))
sketch1.addConstraint(Sketcher.Constraint("Horizontal", 12, 3, 16, 3))
sketch1.addConstraint(Sketcher.Constraint("Horizontal", 16, 3, 20, 3))
sketch1.addConstraint(Sketcher.Constraint("Horizontal", 20, 3, 24, 3))
sketch1.addConstraint(Sketcher.Constraint("Horizontal", 24, 3, 28, 3))
sketch1.addConstraint(Sketcher.Constraint("Horizontal", 28, 3, 32, 3))
sketch1.addConstraint(Sketcher.Constraint("Horizontal", 32, 3, 36, 3))
sketch1.addConstraint(Sketcher.Constraint("Horizontal", 36, 3, 40, 3))
sketch1.addConstraint(Sketcher.Constraint("Horizontal", 40, 3, 44, 3))
sketch1.addConstraint(Sketcher.Constraint("Horizontal", 44, 3, 48, 3))
sketch1.addConstraint(Sketcher.Constraint("Horizontal", 48, 3, 52, 3))
sketch1.addConstraint(Sketcher.Constraint("Horizontal", 52, 3, 56, 3))
sketch1.addConstraint(Sketcher.Constraint("Horizontal", 56, 3, 60, 3))
sketch1.addConstraint(Sketcher.Constraint("Horizontal", 60, 3, 64, 3))
sketch1.addConstraint(Sketcher.Constraint("Horizontal", 64, 3, 68, 3))
sketch1.addConstraint(Sketcher.Constraint("Horizontal", 68, 3, 72, 3))
sketch1.addConstraint(Sketcher.Constraint("Horizontal", 72, 3, 76, 3))
sketch1.addConstraint(Sketcher.Constraint("Horizontal", 76, 3, 80, 3))
sketch1.addConstraint(Sketcher.Constraint("Horizontal", 80, 3, 84, 3))
sketch1.addConstraint(Sketcher.Constraint("Horizontal", 2, 2, 5, 2))
sketch1.addConstraint(Sketcher.Constraint("Horizontal", 6, 2, 9, 2))
sketch1.addConstraint(Sketcher.Constraint("Horizontal", 10, 2, 13, 2))
sketch1.addConstraint(Sketcher.Constraint("Horizontal", 14, 2, 17, 2))
sketch1.addConstraint(Sketcher.Constraint("Horizontal", 18, 2, 21, 2))
sketch1.addConstraint(Sketcher.Constraint("Horizontal", 22, 2, 25, 2))
sketch1.addConstraint(Sketcher.Constraint("Horizontal", 26, 2, 29, 2))
sketch1.addConstraint(Sketcher.Constraint("Horizontal", 30, 2, 33, 2))
sketch1.addConstraint(Sketcher.Constraint("Horizontal", 34, 2, 37, 2))
sketch1.addConstraint(Sketcher.Constraint("Horizontal", 38, 2, 41, 2))
sketch1.addConstraint(Sketcher.Constraint("Horizontal", 42, 2, 45, 2))
sketch1.addConstraint(Sketcher.Constraint("Horizontal", 46, 2, 49, 2))
sketch1.addConstraint(Sketcher.Constraint("Horizontal", 50, 2, 53, 2))
sketch1.addConstraint(Sketcher.Constraint("Horizontal", 54, 2, 57, 2))
sketch1.addConstraint(Sketcher.Constraint("Horizontal", 58, 2, 61, 2))
sketch1.addConstraint(Sketcher.Constraint("Horizontal", 62, 2, 65, 2))
sketch1.addConstraint(Sketcher.Constraint("Horizontal", 66, 2, 69, 2))
sketch1.addConstraint(Sketcher.Constraint("Horizontal", 70, 2, 73, 2))
sketch1.addConstraint(Sketcher.Constraint("Horizontal", 74, 2, 77, 2))
sketch1.addConstraint(Sketcher.Constraint("Horizontal", 78, 2, 81, 2))
sketch1.addConstraint(Sketcher.Constraint("Horizontal", 82, 2, 85, 2))
sketch1.addConstraint(Sketcher.Constraint("Equal", 6, 10))
sketch1.addConstraint(Sketcher.Constraint("Equal", 10, 14))
sketch1.addConstraint(Sketcher.Constraint("Equal", 14, 18))
sketch1.addConstraint(Sketcher.Constraint("Equal", 18, 22))
sketch1.addConstraint(Sketcher.Constraint("Equal", 22, 26))
sketch1.addConstraint(Sketcher.Constraint("Equal", 26, 30))
sketch1.addConstraint(Sketcher.Constraint("Equal", 30, 34))
sketch1.addConstraint(Sketcher.Constraint("Equal", 34, 38))
sketch1.addConstraint(Sketcher.Constraint("Equal", 38, 42))
sketch1.addConstraint(Sketcher.Constraint("Equal", 42, 46))
sketch1.addConstraint(Sketcher.Constraint("Equal", 46, 50))
sketch1.addConstraint(Sketcher.Constraint("Equal", 50, 54))
sketch1.addConstraint(Sketcher.Constraint("Equal", 54, 58))
sketch1.addConstraint(Sketcher.Constraint("Equal", 58, 62))
sketch1.addConstraint(Sketcher.Constraint("Equal", 62, 66))
sketch1.addConstraint(Sketcher.Constraint("Equal", 66, 70))
sketch1.addConstraint(Sketcher.Constraint("Equal", 70, 74))
sketch1.addConstraint(Sketcher.Constraint("Equal", 74, 78))
sketch1.addConstraint(Sketcher.Constraint("Equal", 78, 82))
sketch1.addConstraint(Sketcher.Constraint("DistanceY", 3, 2, 3, 1, Q("1 in")))
sketch1.addConstraint(Sketcher.Constraint("Radius", 4, Q("0.03 in")))
sketch1.addConstraint(Sketcher.Constraint("DistanceX", 6, 2, 6, 1, Q("0.19 in")))
sketch1.addConstraint(Sketcher.Constraint("DistanceX", 0, 1, 0, 2, Q("5.375 in")))
sketch1.addConstraint(Sketcher.Constraint("DistanceX", 2, 2, 2, 1, Q("0.157 in")))
sketch1.addConstraint(Sketcher.Constraint("DistanceY", 1, 2, 1, 1, Q("0.375 in")))
pad1 = body.newObject("PartDesign::Pad", "Pad")
pad1.Profile = sketch1
pad1.Length = Q("18 in")
pad1.Reversed = True

sketch2 = body.newObject("Sketcher::SketchObject", "Sketch001")
sketch2.AttachmentSupport = (doc.getObject("XZ_Plane"), [""])
sketch2.MapMode = "FlatFace"
sketch2.AttachmentOffset = App.Placement(V(0, 0, -18 * 25.4), App.Rotation())
add_polygon(sketch2, [(0, -4.8), (0, 0), (136.5, 0), (136.5, -4.8)])
sketch2.addConstraint(Sketcher.Constraint("Vertical", 0))
sketch2.addConstraint(Sketcher.Constraint("Horizontal", 1))
sketch2.addConstraint(Sketcher.Constraint("Vertical", 2))
sketch2.addConstraint(Sketcher.Constraint("Horizontal", 3))
sketch2.addConstraint(Sketcher.Constraint("Coincident", 0, 2, -1, 1))
sketch2.addConstraint(Sketcher.Constraint("DistanceX", 1, 1, 1, 2, Q("5.375 in")))
sketch2.addConstraint(Sketcher.Constraint("DistanceY", 0, 1, 0, 2, Q("0.1875 in")))
pocket1 = body.newObject("PartDesign::Pocket", "Pocket")
pocket1.Profile = sketch2
pocket1.Type = "ThroughAll"
pocket1.Reversed = True

sketch3 = body.newObject("Sketcher::SketchObject", "Sketch002")
sketch3.AttachmentSupport = (doc.getObject("XZ_Plane"), [""])
sketch3.MapMode = "FlatFace"
add_polygon(sketch3, [(3, -22), (3, -36), (135, -36), (135, -22)])
sketch3.addConstraint(Sketcher.Constraint("Vertical", 0))
sketch3.addConstraint(Sketcher.Constraint("Horizontal", 1))
sketch3.addConstraint(Sketcher.Constraint("Vertical", 2))
sketch3.addConstraint(Sketcher.Constraint("Horizontal", 3))
sketch3.addConstraint(Sketcher.Constraint("DistanceY", 0, 2, 0, 1, Q("0.53 in")))
sketch3.addConstraint(Sketcher.Constraint("DistanceY", 0, 2, -1, 1, Q("1.405 in")))
sketch3.addConstraint(Sketcher.Constraint("DistanceX", 1, 1, 1, 2, 132.265961))
sketch3.addConstraint(Sketcher.Constraint("DistanceX", -1, 1, 0, 2, 3.15019))
pocket2 = body.newObject("PartDesign::Pocket", "Pocket001")
pocket2.Profile = sketch3
pocket2.Type = "ThroughAll"

sketch4 = body.newObject("Sketcher::SketchObject", "Sketch003")
sketch4.AttachmentSupport = (doc.getObject("XY_Plane"), [""])
sketch4.MapMode = "FlatFace"
sketch4.AttachmentOffset = App.Placement(V(0, 0, -0.1875 * 25.4), App.Rotation())
add_polygon(sketch4, [(-49, 506), (-49, -49), (185, -49), (185, 506)])
add_polygon(sketch4, [(115, -2), (21, -2), (21, 479), (115, 479)])
sketch4.addConstraint(Sketcher.Constraint("Vertical", 0))
sketch4.addConstraint(Sketcher.Constraint("Horizontal", 1))
sketch4.addConstraint(Sketcher.Constraint("Vertical", 2))
sketch4.addConstraint(Sketcher.Constraint("Horizontal", 3))
sketch4.addConstraint(Sketcher.Constraint("Horizontal", 4))
sketch4.addConstraint(Sketcher.Constraint("Vertical", 5))
sketch4.addConstraint(Sketcher.Constraint("Horizontal", 6))
sketch4.addConstraint(Sketcher.Constraint("Vertical", 7))
sketch4.addConstraint(Sketcher.Constraint("DistanceX", 1, 1, 1, 2, 234.019))
sketch4.addConstraint(Sketcher.Constraint("DistanceY", 0, 2, 0, 1, 554.694))
sketch4.addConstraint(Sketcher.Constraint("DistanceX", -1, 1, 6, 2, Q("4.5375 in")))
sketch4.addConstraint(Sketcher.Constraint("DistanceX", 4, 2, 4, 1, 94.36038))
sketch4.addConstraint(Sketcher.Constraint("DistanceX", 0, 2, -1, 1, 48.747))
sketch4.addConstraint(Sketcher.Constraint("DistanceY", 0, 2, -1, 1, 48.747))
sketch4.addConstraint(Sketcher.Constraint("DistanceY", 5, 1, 5, 2, 481.674404))
sketch4.addConstraint(Sketcher.Constraint("DistanceY", -1, 1, 5, 2, 479.269909))
pocket3 = body.newObject("PartDesign::Pocket", "Pocket002")
pocket3.Profile = sketch4
pocket3.Type = "ThroughAll"

doc.recompute()
